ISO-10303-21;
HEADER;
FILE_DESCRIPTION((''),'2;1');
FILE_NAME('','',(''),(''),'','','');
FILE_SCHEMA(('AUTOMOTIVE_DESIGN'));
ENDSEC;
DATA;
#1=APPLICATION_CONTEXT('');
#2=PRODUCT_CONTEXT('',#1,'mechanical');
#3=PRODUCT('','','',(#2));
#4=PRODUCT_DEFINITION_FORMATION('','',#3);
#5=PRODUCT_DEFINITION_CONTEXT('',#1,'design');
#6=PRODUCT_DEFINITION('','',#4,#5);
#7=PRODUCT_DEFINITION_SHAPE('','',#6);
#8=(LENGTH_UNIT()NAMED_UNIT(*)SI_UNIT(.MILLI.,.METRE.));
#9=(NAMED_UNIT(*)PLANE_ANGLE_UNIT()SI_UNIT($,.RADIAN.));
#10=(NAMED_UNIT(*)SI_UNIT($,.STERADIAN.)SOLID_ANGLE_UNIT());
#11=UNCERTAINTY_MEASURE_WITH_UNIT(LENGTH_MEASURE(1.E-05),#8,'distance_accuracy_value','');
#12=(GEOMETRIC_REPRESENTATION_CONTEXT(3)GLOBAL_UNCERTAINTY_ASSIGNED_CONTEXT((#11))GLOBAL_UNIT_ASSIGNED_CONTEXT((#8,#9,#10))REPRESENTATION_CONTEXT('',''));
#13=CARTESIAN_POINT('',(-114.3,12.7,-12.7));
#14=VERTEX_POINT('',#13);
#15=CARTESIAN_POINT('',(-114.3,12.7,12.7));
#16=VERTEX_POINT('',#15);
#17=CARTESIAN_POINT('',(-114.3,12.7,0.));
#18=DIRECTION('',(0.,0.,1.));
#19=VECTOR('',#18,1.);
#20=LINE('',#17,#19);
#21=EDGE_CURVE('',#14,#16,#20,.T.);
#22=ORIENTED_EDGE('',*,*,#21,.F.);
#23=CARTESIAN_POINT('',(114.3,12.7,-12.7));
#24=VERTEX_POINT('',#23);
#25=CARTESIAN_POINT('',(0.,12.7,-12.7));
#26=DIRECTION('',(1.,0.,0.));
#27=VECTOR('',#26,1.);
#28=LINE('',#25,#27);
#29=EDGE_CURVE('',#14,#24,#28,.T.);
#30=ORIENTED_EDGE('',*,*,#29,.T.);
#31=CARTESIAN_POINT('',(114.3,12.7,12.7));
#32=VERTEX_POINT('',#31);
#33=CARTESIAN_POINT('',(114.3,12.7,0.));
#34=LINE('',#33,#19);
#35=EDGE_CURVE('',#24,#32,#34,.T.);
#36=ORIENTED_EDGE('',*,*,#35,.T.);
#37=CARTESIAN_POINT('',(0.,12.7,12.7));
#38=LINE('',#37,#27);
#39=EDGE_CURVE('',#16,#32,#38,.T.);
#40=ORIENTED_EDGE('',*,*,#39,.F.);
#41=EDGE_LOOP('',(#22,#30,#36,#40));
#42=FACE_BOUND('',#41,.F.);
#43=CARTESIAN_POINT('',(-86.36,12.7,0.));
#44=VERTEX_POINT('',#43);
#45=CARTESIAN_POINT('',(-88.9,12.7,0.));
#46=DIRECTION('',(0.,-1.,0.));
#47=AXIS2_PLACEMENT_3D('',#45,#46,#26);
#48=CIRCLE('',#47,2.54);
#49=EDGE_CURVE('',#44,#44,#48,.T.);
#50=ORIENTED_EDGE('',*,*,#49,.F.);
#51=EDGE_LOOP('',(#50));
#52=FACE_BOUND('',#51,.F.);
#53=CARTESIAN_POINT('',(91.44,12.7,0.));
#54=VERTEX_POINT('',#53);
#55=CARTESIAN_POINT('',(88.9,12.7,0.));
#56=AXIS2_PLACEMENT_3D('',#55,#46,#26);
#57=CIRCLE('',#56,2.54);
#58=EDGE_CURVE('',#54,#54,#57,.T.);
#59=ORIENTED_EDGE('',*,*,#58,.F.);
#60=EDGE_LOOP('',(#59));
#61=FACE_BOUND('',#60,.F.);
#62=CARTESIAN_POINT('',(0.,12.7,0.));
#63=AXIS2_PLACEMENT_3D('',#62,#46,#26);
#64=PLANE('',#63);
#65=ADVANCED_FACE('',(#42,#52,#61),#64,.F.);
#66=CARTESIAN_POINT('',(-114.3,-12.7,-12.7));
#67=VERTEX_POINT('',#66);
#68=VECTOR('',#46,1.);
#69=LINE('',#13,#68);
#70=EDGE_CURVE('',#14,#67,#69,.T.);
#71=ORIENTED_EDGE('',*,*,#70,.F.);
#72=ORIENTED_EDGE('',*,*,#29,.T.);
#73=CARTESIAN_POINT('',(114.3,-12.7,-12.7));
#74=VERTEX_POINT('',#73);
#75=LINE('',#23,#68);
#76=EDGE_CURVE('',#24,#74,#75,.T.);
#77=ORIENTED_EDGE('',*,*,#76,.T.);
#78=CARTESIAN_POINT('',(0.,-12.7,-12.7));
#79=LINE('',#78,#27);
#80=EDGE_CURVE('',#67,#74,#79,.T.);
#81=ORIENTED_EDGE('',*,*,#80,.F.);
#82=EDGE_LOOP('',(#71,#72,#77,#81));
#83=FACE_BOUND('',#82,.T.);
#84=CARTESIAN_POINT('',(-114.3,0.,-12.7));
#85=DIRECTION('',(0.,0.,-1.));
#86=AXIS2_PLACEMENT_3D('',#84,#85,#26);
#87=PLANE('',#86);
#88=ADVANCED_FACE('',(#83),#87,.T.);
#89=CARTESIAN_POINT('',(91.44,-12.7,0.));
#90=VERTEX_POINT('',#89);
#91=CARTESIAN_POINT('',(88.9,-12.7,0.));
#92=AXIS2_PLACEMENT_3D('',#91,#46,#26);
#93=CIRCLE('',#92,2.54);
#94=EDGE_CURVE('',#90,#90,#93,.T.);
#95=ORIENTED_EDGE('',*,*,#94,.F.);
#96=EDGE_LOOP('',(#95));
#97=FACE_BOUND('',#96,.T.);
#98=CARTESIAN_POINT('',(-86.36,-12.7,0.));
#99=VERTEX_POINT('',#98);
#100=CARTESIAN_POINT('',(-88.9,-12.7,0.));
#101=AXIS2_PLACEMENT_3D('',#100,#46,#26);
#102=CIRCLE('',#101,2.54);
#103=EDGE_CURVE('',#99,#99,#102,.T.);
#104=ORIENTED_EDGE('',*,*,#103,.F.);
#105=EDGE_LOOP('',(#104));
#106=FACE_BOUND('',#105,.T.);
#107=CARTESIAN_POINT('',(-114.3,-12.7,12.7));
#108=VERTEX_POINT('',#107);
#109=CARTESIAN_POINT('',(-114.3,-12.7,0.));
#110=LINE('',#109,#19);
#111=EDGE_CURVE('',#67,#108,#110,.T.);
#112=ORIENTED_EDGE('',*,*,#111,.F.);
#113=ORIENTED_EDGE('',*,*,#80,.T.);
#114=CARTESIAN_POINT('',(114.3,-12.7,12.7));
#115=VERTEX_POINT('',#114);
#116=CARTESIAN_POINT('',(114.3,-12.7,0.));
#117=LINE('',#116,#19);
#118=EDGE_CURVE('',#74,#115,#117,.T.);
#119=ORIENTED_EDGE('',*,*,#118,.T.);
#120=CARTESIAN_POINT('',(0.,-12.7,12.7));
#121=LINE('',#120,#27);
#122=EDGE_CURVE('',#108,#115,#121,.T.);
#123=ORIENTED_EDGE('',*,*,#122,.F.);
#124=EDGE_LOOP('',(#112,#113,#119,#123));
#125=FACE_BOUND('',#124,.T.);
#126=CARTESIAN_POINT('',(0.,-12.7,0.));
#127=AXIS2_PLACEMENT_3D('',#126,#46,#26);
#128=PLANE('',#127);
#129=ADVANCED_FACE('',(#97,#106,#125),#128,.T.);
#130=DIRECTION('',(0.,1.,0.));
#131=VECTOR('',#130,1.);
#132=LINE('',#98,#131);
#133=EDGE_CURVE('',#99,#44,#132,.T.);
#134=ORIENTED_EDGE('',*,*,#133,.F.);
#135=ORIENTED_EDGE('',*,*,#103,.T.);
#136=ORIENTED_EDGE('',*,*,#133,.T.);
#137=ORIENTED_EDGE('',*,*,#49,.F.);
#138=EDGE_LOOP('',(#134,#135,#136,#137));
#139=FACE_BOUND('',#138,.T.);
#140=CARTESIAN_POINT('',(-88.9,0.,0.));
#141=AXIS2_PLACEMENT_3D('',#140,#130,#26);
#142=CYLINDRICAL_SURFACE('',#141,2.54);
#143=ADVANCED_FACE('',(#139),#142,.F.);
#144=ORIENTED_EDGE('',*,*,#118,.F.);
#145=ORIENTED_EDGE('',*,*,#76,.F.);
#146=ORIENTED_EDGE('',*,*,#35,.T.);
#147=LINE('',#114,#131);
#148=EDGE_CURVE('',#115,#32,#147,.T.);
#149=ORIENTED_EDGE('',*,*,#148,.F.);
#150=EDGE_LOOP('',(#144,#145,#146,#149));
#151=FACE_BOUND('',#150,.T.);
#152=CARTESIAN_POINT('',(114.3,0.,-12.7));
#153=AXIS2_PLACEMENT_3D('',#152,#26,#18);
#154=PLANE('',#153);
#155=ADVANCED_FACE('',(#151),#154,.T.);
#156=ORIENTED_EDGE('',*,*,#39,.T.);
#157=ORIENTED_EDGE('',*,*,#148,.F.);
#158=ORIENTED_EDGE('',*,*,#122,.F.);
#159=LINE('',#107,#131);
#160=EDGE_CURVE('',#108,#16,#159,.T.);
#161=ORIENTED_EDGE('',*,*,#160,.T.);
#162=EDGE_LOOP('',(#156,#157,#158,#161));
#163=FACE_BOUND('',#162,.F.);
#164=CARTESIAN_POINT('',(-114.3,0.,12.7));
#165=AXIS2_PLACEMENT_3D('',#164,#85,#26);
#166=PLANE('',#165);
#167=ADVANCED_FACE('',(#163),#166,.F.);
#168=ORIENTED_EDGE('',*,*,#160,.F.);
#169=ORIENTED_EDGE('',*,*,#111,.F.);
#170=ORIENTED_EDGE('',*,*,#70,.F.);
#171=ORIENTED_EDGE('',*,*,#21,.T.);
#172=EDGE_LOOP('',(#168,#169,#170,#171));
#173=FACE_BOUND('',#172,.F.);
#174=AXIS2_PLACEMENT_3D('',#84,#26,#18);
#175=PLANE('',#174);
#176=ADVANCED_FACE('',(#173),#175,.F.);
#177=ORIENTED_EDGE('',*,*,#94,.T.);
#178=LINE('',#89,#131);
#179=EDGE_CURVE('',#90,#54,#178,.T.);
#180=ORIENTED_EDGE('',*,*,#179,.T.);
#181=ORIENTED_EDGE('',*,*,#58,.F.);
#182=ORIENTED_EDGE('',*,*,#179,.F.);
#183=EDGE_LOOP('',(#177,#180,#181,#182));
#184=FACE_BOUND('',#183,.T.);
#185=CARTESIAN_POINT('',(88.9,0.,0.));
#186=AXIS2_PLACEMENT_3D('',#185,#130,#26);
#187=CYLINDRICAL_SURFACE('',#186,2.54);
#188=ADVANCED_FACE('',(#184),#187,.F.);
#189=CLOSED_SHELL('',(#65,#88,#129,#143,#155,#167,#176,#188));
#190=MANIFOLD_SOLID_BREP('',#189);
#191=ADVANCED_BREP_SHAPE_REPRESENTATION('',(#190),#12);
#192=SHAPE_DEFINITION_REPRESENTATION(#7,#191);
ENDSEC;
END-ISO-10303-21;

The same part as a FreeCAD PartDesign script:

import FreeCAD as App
import Part
import Sketcher
from FreeCAD import Vector
Q = App.Units.Quantity

doc = App.newDocument("Part")
body = doc.addObject("PartDesign::Body", "Body")

sketch1 = body.newObject("Sketcher::SketchObject", "Sketch")
sketch1.AttachmentSupport = (doc.getObject("XZ_Plane"), [""])
sketch1.MapMode = "FlatFace"
sketch1.addGeometry([
    Part.LineSegment(Vector(-114.3, 12.7, 0), Vector(-114.3, -12.7, 0)),
    Part.LineSegment(Vector(-114.3, -12.7, 0), Vector(114.3, -12.7, 0)),
    Part.LineSegment(Vector(114.3, -12.7, 0), Vector(114.3, 12.7, 0)),
    Part.LineSegment(Vector(114.3, 12.7, 0), Vector(-114.3, 12.7, 0)),
    Part.Circle(Vector(-88.9, 0, 0), Vector(0, 0, 1), 2.5),
    Part.Circle(Vector(88.9, 0, 0), Vector(0, 0, 1), 2.5),
], False)
sketch1.addConstraint([
    Sketcher.Constraint("Coincident", 0, 2, 1, 1),
    Sketcher.Constraint("Coincident", 1, 2, 2, 1),
    Sketcher.Constraint("Coincident", 2, 2, 3, 1),
    Sketcher.Constraint("Coincident", 3, 2, 0, 1),
    Sketcher.Constraint("Vertical", 0),
    Sketcher.Constraint("Horizontal", 1),
    Sketcher.Constraint("Vertical", 2),
    Sketcher.Constraint("Horizontal", 3),
    Sketcher.Constraint("Equal", 4, 5),
    Sketcher.Constraint("Symmetric", 4, 3, 5, 3, -1, 1),
    Sketcher.Constraint("Symmetric", 0, 2, 2, 2, -1, 1),
    Sketcher.Constraint("PointOnObject", 4, 3, -1),
    Sketcher.Constraint("Diameter", 4, Q("0.2 in")),
    Sketcher.Constraint("DistanceX", 1, 1, 1, 2, Q("9 in")),
    Sketcher.Constraint("DistanceY", 0, 2, 0, 1, Q("1 in")),
    Sketcher.Constraint("DistanceX", 4, 3, 5, 3, Q("7 in")),
])
pad1 = body.newObject("PartDesign::Pad", "Pad")
pad1.Profile = sketch1
pad1.Length = Q("1 in")
pad1.Midplane = True

doc.recompute()
